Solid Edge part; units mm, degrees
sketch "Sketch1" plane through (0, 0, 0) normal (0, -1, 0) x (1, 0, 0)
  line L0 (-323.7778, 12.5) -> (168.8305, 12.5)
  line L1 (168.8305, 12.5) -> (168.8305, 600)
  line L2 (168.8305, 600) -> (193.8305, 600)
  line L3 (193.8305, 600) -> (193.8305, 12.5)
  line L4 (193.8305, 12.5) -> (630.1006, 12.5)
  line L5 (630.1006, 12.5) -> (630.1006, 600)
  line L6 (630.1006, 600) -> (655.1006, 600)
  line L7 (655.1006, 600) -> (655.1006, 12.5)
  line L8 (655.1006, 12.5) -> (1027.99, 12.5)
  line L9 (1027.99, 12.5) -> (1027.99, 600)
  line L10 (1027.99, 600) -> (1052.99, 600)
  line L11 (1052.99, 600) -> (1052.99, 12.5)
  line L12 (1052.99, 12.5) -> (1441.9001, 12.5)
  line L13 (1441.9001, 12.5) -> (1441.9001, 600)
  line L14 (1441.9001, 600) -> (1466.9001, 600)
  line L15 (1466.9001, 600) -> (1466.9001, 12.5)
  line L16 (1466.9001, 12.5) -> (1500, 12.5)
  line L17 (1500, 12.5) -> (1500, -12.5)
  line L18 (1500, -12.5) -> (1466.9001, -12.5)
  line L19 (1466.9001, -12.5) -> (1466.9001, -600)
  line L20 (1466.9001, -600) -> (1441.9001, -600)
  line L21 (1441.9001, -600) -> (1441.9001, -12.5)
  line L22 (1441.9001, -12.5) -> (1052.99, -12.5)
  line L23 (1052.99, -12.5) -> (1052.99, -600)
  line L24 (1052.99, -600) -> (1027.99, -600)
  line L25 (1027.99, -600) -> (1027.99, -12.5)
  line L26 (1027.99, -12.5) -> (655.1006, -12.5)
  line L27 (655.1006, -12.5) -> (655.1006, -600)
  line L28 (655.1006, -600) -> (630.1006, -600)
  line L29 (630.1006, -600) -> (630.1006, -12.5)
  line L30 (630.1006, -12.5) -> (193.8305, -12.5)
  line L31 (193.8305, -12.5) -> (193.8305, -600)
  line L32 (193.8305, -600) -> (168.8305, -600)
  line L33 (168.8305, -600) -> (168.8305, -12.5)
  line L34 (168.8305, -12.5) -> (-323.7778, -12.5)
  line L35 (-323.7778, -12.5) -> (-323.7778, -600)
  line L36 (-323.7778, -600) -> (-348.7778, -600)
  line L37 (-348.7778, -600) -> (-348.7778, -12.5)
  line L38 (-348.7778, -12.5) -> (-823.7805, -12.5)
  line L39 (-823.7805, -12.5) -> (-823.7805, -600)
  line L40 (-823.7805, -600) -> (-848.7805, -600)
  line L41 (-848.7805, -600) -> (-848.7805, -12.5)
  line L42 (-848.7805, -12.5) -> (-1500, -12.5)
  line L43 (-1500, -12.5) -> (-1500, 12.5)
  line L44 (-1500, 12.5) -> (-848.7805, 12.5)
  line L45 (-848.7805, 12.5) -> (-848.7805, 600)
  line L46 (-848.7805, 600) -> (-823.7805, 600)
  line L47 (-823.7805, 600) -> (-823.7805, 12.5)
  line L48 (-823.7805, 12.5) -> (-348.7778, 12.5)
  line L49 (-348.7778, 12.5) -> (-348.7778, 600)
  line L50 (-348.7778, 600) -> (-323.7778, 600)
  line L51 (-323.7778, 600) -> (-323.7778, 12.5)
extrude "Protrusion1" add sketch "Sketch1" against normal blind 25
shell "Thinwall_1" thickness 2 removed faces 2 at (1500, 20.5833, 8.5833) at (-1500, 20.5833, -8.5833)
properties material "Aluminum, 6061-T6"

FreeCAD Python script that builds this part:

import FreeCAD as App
import Part
import Sketcher

V = App.Vector
Q = App.Units.Quantity


def faces_at(feature, points):
    """Names of the faces that lie closest to the given points."""
    faces = feature.Shape.Faces
    near = lambda p: min(range(len(faces)), key=lambda i: faces[i].distToShape(Part.Vertex(*p))[0])
    return sorted({f"Face{near(p) + 1}" for p in points})


def add_polygon(sketch, points):
    """Adds a closed chain of lines whose ends are joined by coincident constraints."""
    first, n = sketch.GeometryCount, len(points)
    for a, b in zip(points, points[1:] + points[:1]):
        sketch.addGeometry(Part.LineSegment(App.Vector(*a, 0), App.Vector(*b, 0)), False)
    for i in range(n):
        sketch.addConstraint(Sketcher.Constraint("Coincident", first + i, 2, first + (i + 1) % n, 1))

doc = App.newDocument("Part")
body = doc.addObject("PartDesign::Body", "Body")

# Sketch on XZ plane
sketch1 = doc.addObject("Sketcher::SketchObject", "Sketch")
body.addObject(sketch1)
sketch1.AttachmentSupport = (doc.XZ_Plane, [""])
sketch1.MapMode = "FlatFace"
add_polygon(sketch1, [(168.8305, 12.5), (-323.7778, 12.5), (-323.7778, 600), (-348.7778, 600), (-348.7778, 12.5), (-823.7805, 12.5), (-823.7805, 600), (-848.7805, 600), (-848.7805, 12.5), (-1500, 12.5), (-1500, -12.5), (-848.7805, -12.5), (-848.7805, -600), (-823.7805, -600), (-823.7805, -12.5), (-348.7778, -12.5), (-348.7778, -600), (-323.7778, -600), (-323.7778, -12.5), (168.8305, -12.5), (168.8305, -600), (193.8305, -600), (193.8305, -12.5), (630.1006, -12.5), (630.1006, -600), (655.1006, -600), (655.1006, -12.5), (1027.99, -12.5), (1027.99, -600), (1052.99, -600), (1052.99, -12.5), (1441.9001, -12.5), (1441.9001, -600), (1466.9001, -600), (1466.9001, -12.5), (1500, -12.5), (1500, 12.5), (1466.9001, 12.5), (1466.9001, 600), (1441.9001, 600), (1441.9001, 12.5), (1052.99, 12.5), (1052.99, 600), (1027.99, 600), (1027.99, 12.5), (655.1006, 12.5), (655.1006, 600), (630.1006, 600), (630.1006, 12.5), (193.8305, 12.5), (193.8305, 600), (168.8305, 600)])  # lines 0-51
sketch1.addConstraint(Sketcher.Constraint("Horizontal", 0))
sketch1.addConstraint(Sketcher.Constraint("Vertical", 1))
sketch1.addConstraint(Sketcher.Constraint("Horizontal", 2))
sketch1.addConstraint(Sketcher.Constraint("Vertical", 3))
sketch1.addConstraint(Sketcher.Constraint("Horizontal", 4))
sketch1.addConstraint(Sketcher.Constraint("Vertical", 5))
sketch1.addConstraint(Sketcher.Constraint("Horizontal", 6))
sketch1.addConstraint(Sketcher.Constraint("Vertical", 7))
sketch1.addConstraint(Sketcher.Constraint("Horizontal", 8))
sketch1.addConstraint(Sketcher.Constraint("Vertical", 9))
sketch1.addConstraint(Sketcher.Constraint("Horizontal", 10))
sketch1.addConstraint(Sketcher.Constraint("Vertical", 11))
sketch1.addConstraint(Sketcher.Constraint("Horizontal", 12))
sketch1.addConstraint(Sketcher.Constraint("Vertical", 13))
sketch1.addConstraint(Sketcher.Constraint("Horizontal", 14))
sketch1.addConstraint(Sketcher.Constraint("Vertical", 15))
sketch1.addConstraint(Sketcher.Constraint("Horizontal", 16))
sketch1.addConstraint(Sketcher.Constraint("Vertical", 17))
sketch1.addConstraint(Sketcher.Constraint("Horizontal", 18))
sketch1.addConstraint(Sketcher.Constraint("Vertical", 19))
sketch1.addConstraint(Sketcher.Constraint("Horizontal", 20))
sketch1.addConstraint(Sketcher.Constraint("Vertical", 21))
sketch1.addConstraint(Sketcher.Constraint("Horizontal", 22))
sketch1.addConstraint(Sketcher.Constraint("Vertical", 23))
sketch1.addConstraint(Sketcher.Constraint("Horizontal", 24))
sketch1.addConstraint(Sketcher.Constraint("Vertical", 25))
sketch1.addConstraint(Sketcher.Constraint("Horizontal", 26))
sketch1.addConstraint(Sketcher.Constraint("Vertical", 27))
sketch1.addConstraint(Sketcher.Constraint("Horizontal", 28))
sketch1.addConstraint(Sketcher.Constraint("Vertical", 29))
sketch1.addConstraint(Sketcher.Constraint("Horizontal", 30))
sketch1.addConstraint(Sketcher.Constraint("Vertical", 31))
sketch1.addConstraint(Sketcher.Constraint("Horizontal", 32))
sketch1.addConstraint(Sketcher.Constraint("Vertical", 33))
sketch1.addConstraint(Sketcher.Constraint("Horizontal", 34))
sketch1.addConstraint(Sketcher.Constraint("Vertical", 35))
sketch1.addConstraint(Sketcher.Constraint("Horizontal", 36))
sketch1.addConstraint(Sketcher.Constraint("Vertical", 37))
sketch1.addConstraint(Sketcher.Constraint("Horizontal", 38))
sketch1.addConstraint(Sketcher.Constraint("Vertical", 39))
sketch1.addConstraint(Sketcher.Constraint("Horizontal", 40))
sketch1.addConstraint(Sketcher.Constraint("Vertical", 41))
sketch1.addConstraint(Sketcher.Constraint("Horizontal", 42))
sketch1.addConstraint(Sketcher.Constraint("Vertical", 43))
sketch1.addConstraint(Sketcher.Constraint("Horizontal", 44))
sketch1.addConstraint(Sketcher.Constraint("Vertical", 45))
sketch1.addConstraint(Sketcher.Constraint("Horizontal", 46))
sketch1.addConstraint(Sketcher.Constraint("Vertical", 47))
sketch1.addConstraint(Sketcher.Constraint("Horizontal", 48))
sketch1.addConstraint(Sketcher.Constraint("Vertical", 49))
sketch1.addConstraint(Sketcher.Constraint("Horizontal", 50))
sketch1.addConstraint(Sketcher.Constraint("Vertical", 51))
sketch1.addConstraint(Sketcher.Constraint("Symmetric", 8, 2, 34, 2, -1, 1))
sketch1.addConstraint(Sketcher.Constraint("Symmetric", 7, 2, 10, 2, -1))
sketch1.addConstraint(Sketcher.Constraint("Symmetric", 5, 2, 12, 2, -1))
sketch1.addConstraint(Sketcher.Constraint("Symmetric", 3, 2, 14, 2, -1))
sketch1.addConstraint(Sketcher.Constraint("Symmetric", 1, 2, 16, 2, -1))
sketch1.addConstraint(Sketcher.Constraint("Symmetric", 33, 2, 36, 2, -1))
sketch1.addConstraint(Sketcher.Constraint("Symmetric", 31, 2, 38, 2, -1))
sketch1.addConstraint(Sketcher.Constraint("Symmetric", 29, 2, 40, 2, -1))
sketch1.addConstraint(Sketcher.Constraint("Symmetric", 27, 2, 42, 2, -1))
sketch1.addConstraint(Sketcher.Constraint("Symmetric", 25, 2, 44, 2, -1))
sketch1.addConstraint(Sketcher.Constraint("Symmetric", 23, 2, 46, 2, -1))
sketch1.addConstraint(Sketcher.Constraint("Symmetric", 21, 2, 48, 2, -1))
sketch1.addConstraint(Sketcher.Constraint("Symmetric", 19, 2, 50, 2, -1))
sketch1.addConstraint(Sketcher.Constraint("Horizontal", 0, 2, 3, 2))
sketch1.addConstraint(Sketcher.Constraint("Horizontal", 2, 2, 5, 2))
sketch1.addConstraint(Sketcher.Constraint("Horizontal", 4, 2, 7, 2))
sketch1.addConstraint(Sketcher.Constraint("Horizontal", 14, 2, 17, 2))
sketch1.addConstraint(Sketcher.Constraint("Horizontal", 16, 2, 19, 2))
sketch1.addConstraint(Sketcher.Constraint("Horizontal", 18, 2, 21, 2))
sketch1.addConstraint(Sketcher.Constraint("Horizontal", 20, 2, 23, 2))
sketch1.addConstraint(Sketcher.Constraint("Horizontal", 22, 2, 25, 2))
sketch1.addConstraint(Sketcher.Constraint("Horizontal", 24, 2, 27, 2))
sketch1.addConstraint(Sketcher.Constraint("Horizontal", 26, 2, 29, 2))
sketch1.addConstraint(Sketcher.Constraint("Horizontal", 28, 2, 31, 2))
sketch1.addConstraint(Sketcher.Constraint("Equal", 2, 6))
sketch1.addConstraint(Sketcher.Constraint("Equal", 16, 20))
sketch1.addConstraint(Sketcher.Constraint("Equal", 20, 24))
sketch1.addConstraint(Sketcher.Constraint("Equal", 24, 28))
sketch1.addConstraint(Sketcher.Constraint("Equal", 28, 32))
sketch1.addConstraint(Sketcher.Constraint("Equal", 50, 9))
sketch1.addConstraint(Sketcher.Constraint("DistanceX", 2, 2, 2, 1, Q("25 mm")))
sketch1.addConstraint(Sketcher.Constraint("DistanceX", 34, 1, 34, 2, Q("33.1 mm")))
sketch1.addConstraint(Sketcher.Constraint("DistanceY", 1, 1, 1, 2, Q("587.5 mm")))
sketch1.addConstraint(Sketcher.Constraint("DistanceX", 8, 2, -1, 1, Q("1500 mm")))
sketch1.addConstraint(Sketcher.Constraint("DistanceX", 22, 1, 22, 2, Q("436.27 mm")))
sketch1.addConstraint(Sketcher.Constraint("DistanceX", 30, 1, 30, 2, Q("388.91 mm")))
sketch1.addConstraint(Sketcher.Constraint("DistanceX", 0, 2, 0, 1, Q("492.6083 mm")))
sketch1.addConstraint(Sketcher.Constraint("DistanceX", 4, 2, 4, 1, Q("475.0027 mm")))
sketch1.addConstraint(Sketcher.Constraint("DistanceX", 8, 2, 8, 1, Q("651.2195 mm")))
pad1 = doc.addObject("PartDesign::Pad", "Pad")
body.addObject(pad1)
pad1.Profile = sketch1
pad1.Length = 25
pad1.Reversed = True
doc.recompute()

thickness = doc.addObject("PartDesign::Thickness", "Thickness")
body.addObject(thickness)
thickness.Base = (pad1, faces_at(pad1, [(1500, 20.583, 8.583), (-1500, 20.583, -8.583)]))
thickness.Value = 2
thickness.Reversed = True
thickness.Join = "Intersection"

doc.recompute()
